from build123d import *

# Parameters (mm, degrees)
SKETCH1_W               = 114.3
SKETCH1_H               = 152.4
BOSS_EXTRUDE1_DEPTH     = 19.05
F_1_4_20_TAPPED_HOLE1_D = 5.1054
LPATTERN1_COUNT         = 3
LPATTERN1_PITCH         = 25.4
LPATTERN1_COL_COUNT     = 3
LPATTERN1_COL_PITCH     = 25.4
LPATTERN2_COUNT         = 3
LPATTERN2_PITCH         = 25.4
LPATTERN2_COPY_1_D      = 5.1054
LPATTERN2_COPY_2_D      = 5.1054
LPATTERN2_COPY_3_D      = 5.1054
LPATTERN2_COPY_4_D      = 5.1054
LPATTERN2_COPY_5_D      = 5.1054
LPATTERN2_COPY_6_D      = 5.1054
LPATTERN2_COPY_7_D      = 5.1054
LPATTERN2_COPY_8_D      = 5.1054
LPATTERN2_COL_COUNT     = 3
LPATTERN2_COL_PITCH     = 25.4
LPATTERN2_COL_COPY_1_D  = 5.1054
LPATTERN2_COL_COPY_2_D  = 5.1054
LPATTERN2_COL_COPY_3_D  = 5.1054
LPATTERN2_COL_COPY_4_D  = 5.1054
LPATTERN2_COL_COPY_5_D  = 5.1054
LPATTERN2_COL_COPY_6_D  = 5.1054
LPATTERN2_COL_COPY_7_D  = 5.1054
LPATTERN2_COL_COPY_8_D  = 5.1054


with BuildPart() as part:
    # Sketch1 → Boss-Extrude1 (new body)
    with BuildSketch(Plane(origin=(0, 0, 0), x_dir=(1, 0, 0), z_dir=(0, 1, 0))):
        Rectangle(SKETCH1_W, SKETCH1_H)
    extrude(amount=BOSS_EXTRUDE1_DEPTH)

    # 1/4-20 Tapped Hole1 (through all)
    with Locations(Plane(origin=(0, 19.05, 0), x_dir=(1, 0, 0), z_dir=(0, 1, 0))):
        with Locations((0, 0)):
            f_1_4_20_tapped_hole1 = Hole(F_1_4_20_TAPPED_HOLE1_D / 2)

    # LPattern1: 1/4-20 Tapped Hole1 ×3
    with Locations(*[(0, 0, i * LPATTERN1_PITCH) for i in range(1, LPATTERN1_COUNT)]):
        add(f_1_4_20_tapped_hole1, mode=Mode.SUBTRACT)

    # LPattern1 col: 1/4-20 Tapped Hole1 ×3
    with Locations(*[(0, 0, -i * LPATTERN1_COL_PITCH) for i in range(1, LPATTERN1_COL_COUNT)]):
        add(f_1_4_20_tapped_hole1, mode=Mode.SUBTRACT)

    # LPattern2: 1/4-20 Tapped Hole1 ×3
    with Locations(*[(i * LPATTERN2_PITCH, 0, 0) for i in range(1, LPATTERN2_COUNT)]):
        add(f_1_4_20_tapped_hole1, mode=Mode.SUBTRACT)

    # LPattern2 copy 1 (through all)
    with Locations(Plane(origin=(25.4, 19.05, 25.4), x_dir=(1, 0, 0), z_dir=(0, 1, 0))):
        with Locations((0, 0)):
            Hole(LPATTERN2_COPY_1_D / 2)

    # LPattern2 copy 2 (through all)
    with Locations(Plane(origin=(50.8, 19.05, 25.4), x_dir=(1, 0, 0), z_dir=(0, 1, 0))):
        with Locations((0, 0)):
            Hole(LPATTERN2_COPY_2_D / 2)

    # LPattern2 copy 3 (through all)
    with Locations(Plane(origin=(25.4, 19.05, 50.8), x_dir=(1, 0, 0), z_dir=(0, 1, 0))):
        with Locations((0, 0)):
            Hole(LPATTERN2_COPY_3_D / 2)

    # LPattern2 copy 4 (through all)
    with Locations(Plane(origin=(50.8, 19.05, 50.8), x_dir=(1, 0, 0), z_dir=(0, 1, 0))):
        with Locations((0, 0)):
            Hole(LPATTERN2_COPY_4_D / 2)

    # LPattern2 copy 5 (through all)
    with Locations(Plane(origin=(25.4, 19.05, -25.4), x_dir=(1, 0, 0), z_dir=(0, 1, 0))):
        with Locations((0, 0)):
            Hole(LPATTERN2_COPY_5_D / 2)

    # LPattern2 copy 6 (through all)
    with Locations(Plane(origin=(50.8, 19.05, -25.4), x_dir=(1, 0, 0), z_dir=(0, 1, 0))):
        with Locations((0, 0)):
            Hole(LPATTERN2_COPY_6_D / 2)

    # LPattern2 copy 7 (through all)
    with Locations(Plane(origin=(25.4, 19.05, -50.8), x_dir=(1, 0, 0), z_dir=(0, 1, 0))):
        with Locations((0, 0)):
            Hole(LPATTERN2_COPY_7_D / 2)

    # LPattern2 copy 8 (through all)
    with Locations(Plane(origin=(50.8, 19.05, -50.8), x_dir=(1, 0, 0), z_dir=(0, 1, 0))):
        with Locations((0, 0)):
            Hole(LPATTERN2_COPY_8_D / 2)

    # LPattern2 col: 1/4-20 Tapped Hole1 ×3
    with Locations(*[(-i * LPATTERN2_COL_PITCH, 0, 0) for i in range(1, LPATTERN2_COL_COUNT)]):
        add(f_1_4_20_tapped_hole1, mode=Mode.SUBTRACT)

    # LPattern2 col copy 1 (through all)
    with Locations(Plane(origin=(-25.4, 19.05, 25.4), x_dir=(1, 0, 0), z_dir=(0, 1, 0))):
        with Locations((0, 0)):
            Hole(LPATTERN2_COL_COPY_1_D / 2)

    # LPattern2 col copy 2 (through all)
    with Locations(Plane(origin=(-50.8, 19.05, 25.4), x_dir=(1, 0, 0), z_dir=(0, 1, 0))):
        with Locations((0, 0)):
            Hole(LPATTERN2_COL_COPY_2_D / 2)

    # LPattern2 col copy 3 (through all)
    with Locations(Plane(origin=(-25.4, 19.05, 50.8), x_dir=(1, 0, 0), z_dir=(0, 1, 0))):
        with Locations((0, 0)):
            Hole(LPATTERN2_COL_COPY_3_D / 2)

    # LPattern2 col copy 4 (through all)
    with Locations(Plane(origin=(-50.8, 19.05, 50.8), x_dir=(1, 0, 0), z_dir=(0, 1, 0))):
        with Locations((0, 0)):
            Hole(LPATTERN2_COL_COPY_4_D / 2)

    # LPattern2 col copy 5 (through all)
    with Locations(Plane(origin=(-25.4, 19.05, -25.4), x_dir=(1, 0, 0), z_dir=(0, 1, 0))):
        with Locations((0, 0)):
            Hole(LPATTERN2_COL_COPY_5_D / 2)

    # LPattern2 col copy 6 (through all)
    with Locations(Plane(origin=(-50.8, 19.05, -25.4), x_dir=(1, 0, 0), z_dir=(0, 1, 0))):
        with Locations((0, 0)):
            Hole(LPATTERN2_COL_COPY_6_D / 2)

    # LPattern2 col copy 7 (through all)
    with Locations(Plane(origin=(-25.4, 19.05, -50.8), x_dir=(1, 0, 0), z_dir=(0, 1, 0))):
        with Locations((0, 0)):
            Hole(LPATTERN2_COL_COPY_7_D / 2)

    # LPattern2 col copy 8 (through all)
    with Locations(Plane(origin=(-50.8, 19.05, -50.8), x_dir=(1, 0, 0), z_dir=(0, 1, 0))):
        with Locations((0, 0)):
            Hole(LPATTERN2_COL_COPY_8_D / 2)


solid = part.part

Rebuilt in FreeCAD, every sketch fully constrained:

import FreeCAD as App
import Part
import Sketcher
Q = App.Units.Quantity

doc = App.newDocument("Part")
body = doc.addObject("PartDesign::Body", "Body")

sketch1 = body.newObject("Sketcher::SketchObject", "Sketch")
sketch1.AttachmentSupport = (doc.getObject("XZ_Plane"), [""])
sketch1.MapMode = "FlatFace"
sketch1.addGeometry([
    Part.LineSegment(App.Vector(-57, -76, 0), App.Vector(-57, 76, 0)),
    Part.LineSegment(App.Vector(-57, 76, 0), App.Vector(57, 76, 0)),
    Part.LineSegment(App.Vector(57, 76, 0), App.Vector(57, -76, 0)),
    Part.LineSegment(App.Vector(57, -76, 0), App.Vector(-57, -76, 0)),
], False)
sketch1.addConstraint([
    Sketcher.Constraint("Coincident", 0, 2, 1, 1),
    Sketcher.Constraint("Coincident", 1, 2, 2, 1),
    Sketcher.Constraint("Coincident", 2, 2, 3, 1),
    Sketcher.Constraint("Coincident", 3, 2, 0, 1),
    Sketcher.Constraint("Vertical", 0),
    Sketcher.Constraint("Horizontal", 1),
    Sketcher.Constraint("Vertical", 2),
    Sketcher.Constraint("Horizontal", 3),
    Sketcher.Constraint("Symmetric", 0, 2, 2, 2, -1, 1),
    Sketcher.Constraint("DistanceY", 0, 1, 0, 2, Q("6 in")),
    Sketcher.Constraint("DistanceX", 1, 1, 1, 2, Q("4.5 in")),
])
pad1 = body.newObject("PartDesign::Pad", "Pad")
pad1.Profile = sketch1
pad1.Length = Q("0.75 in")
pad1.Reversed = True

sketch2 = body.newObject("Sketcher::SketchObject", "Sketch001")
sketch2.AttachmentSupport = (doc.getObject("XZ_Plane"), [""])
sketch2.MapMode = "FlatFace"
sketch2.AttachmentOffset = App.Placement(App.Vector(0, 0, -0.75 * 25.4), App.Rotation())
sketch2.addGeometry(Part.Circle(App.Vector(0, 0, 0), App.Vector(0, 0, 1), 2.6), False)
sketch2.addConstraint([
    Sketcher.Constraint("Coincident", 0, 3, -1, 1),
    Sketcher.Constraint("Diameter", 0, Q("0.201 in")),
])
doc.recompute()
hole = body.newObject("PartDesign::Hole", "Hole")
hole.Profile = sketch2
hole.ThreadType = "None"
hole.Diameter = Q("0.201 in")
hole.DepthType = "ThroughAll"
hole.Reversed = True
doc.recompute()

linearpattern = body.newObject("PartDesign::LinearPattern", "LinearPattern")
linearpattern.Originals = [hole]
linearpattern.Direction = (doc.getObject("Z_Axis"), [""])
linearpattern.Mode = "offset"
linearpattern.Offset = Q("1 in")
linearpattern.Occurrences = 3
body.Tip = linearpattern
doc.recompute()

linearpattern2 = body.newObject("PartDesign::LinearPattern", "LinearPattern001")
linearpattern2.Originals = [hole]
linearpattern2.Direction = (doc.getObject("Z_Axis"), [""])
linearpattern2.Mode = "offset"
linearpattern2.Offset = Q("1 in")
linearpattern2.Occurrences = 3
linearpattern2.Reversed = True
body.Tip = linearpattern2
doc.recompute()

linearpattern3 = body.newObject("PartDesign::LinearPattern", "LinearPattern002")
linearpattern3.Originals = [hole]
linearpattern3.Direction = (doc.getObject("X_Axis"), [""])
linearpattern3.Mode = "offset"
linearpattern3.Offset = Q("1 in")
linearpattern3.Occurrences = 3
body.Tip = linearpattern3

sketch3 = body.newObject("Sketcher::SketchObject", "Sketch002")
sketch3.AttachmentSupport = (doc.getObject("XZ_Plane"), [""])
sketch3.MapMode = "FlatFace"
sketch3.AttachmentOffset = App.Placement(App.Vector(0, 0, -0.75 * 25.4), App.Rotation())
sketch3.addGeometry(Part.Circle(App.Vector(25.4, 25.4, 0), App.Vector(0, 0, 1), 2.6), False)
sketch3.addConstraint([
    Sketcher.Constraint("Diameter", 0, Q("0.201 in")),
    Sketcher.Constraint("DistanceX", -1, 1, 0, 3, Q("1 in")),
    Sketcher.Constraint("DistanceY", -1, 1, 0, 3, Q("1 in")),
])
doc.recompute()
hole2 = body.newObject("PartDesign::Hole", "Hole001")
hole2.Profile = sketch3
hole2.ThreadType = "None"
hole2.Diameter = Q("0.201 in")
hole2.DepthType = "ThroughAll"
hole2.Reversed = True

sketch4 = body.newObject("Sketcher::SketchObject", "Sketch003")
sketch4.AttachmentSupport = (doc.getObject("XZ_Plane"), [""])
sketch4.MapMode = "FlatFace"
sketch4.AttachmentOffset = App.Placement(App.Vector(0, 0, -0.75 * 25.4), App.Rotation())
sketch4.addGeometry(Part.Circle(App.Vector(50.8, 25.4, 0), App.Vector(0, 0, 1), 2.6), False)
sketch4.addConstraint([
    Sketcher.Constraint("Diameter", 0, Q("0.201 in")),
    Sketcher.Constraint("DistanceX", -1, 1, 0, 3, Q("2 in")),
    Sketcher.Constraint("DistanceY", -1, 1, 0, 3, Q("1 in")),
])
doc.recompute()
hole3 = body.newObject("PartDesign::Hole", "Hole002")
hole3.Profile = sketch4
hole3.ThreadType = "None"
hole3.Diameter = Q("0.201 in")
hole3.DepthType = "ThroughAll"
hole3.Reversed = True

sketch5 = body.newObject("Sketcher::SketchObject", "Sketch004")
sketch5.AttachmentSupport = (doc.getObject("XZ_Plane"), [""])
sketch5.MapMode = "FlatFace"
sketch5.AttachmentOffset = App.Placement(App.Vector(0, 0, -0.75 * 25.4), App.Rotation())
sketch5.addGeometry(Part.Circle(App.Vector(25.4, 50.8, 0), App.Vector(0, 0, 1), 2.6), False)
sketch5.addConstraint([
    Sketcher.Constraint("Diameter", 0, Q("0.201 in")),
    Sketcher.Constraint("DistanceX", -1, 1, 0, 3, Q("1 in")),
    Sketcher.Constraint("DistanceY", -1, 1, 0, 3, Q("2 in")),
])
doc.recompute()
hole4 = body.newObject("PartDesign::Hole", "Hole003")
hole4.Profile = sketch5
hole4.ThreadType = "None"
hole4.Diameter = Q("0.201 in")
hole4.DepthType = "ThroughAll"
hole4.Reversed = True

sketch6 = body.newObject("Sketcher::SketchObject", "Sketch005")
sketch6.AttachmentSupport = (doc.getObject("XZ_Plane"), [""])
sketch6.MapMode = "FlatFace"
sketch6.AttachmentOffset = App.Placement(App.Vector(0, 0, -0.75 * 25.4), App.Rotation())
sketch6.addGeometry(Part.Circle(App.Vector(50.8, 50.8, 0), App.Vector(0, 0, 1), 2.6), False)
sketch6.addConstraint([
    Sketcher.Constraint("Diameter", 0, Q("0.201 in")),
    Sketcher.Constraint("DistanceX", -1, 1, 0, 3, Q("2 in")),
    Sketcher.Constraint("DistanceY", -1, 1, 0, 3, Q("2 in")),
])
doc.recompute()
hole5 = body.newObject("PartDesign::Hole", "Hole004")
hole5.Profile = sketch6
hole5.ThreadType = "None"
hole5.Diameter = Q("0.201 in")
hole5.DepthType = "ThroughAll"
hole5.Reversed = True

sketch7 = body.newObject("Sketcher::SketchObject", "Sketch006")
sketch7.AttachmentSupport = (doc.getObject("XZ_Plane"), [""])
sketch7.MapMode = "FlatFace"
sketch7.AttachmentOffset = App.Placement(App.Vector(0, 0, -0.75 * 25.4), App.Rotation())
sketch7.addGeometry(Part.Circle(App.Vector(25.4, -25.4, 0), App.Vector(0, 0, 1), 2.6), False)
sketch7.addConstraint([
    Sketcher.Constraint("Diameter", 0, Q("0.201 in")),
    Sketcher.Constraint("DistanceX", -1, 1, 0, 3, Q("1 in")),
    Sketcher.Constraint("DistanceY", 0, 3, -1, 1, Q("1 in")),
])
doc.recompute()
hole6 = body.newObject("PartDesign::Hole", "Hole005")
hole6.Profile = sketch7
hole6.ThreadType = "None"
hole6.Diameter = Q("0.201 in")
hole6.DepthType = "ThroughAll"
hole6.Reversed = True

sketch8 = body.newObject("Sketcher::SketchObject", "Sketch007")
sketch8.AttachmentSupport = (doc.getObject("XZ_Plane"), [""])
sketch8.MapMode = "FlatFace"
sketch8.AttachmentOffset = App.Placement(App.Vector(0, 0, -0.75 * 25.4), App.Rotation())
sketch8.addGeometry(Part.Circle(App.Vector(50.8, -25.4, 0), App.Vector(0, 0, 1), 2.6), False)
sketch8.addConstraint([
    Sketcher.Constraint("Diameter", 0, Q("0.201 in")),
    Sketcher.Constraint("DistanceX", -1, 1, 0, 3, Q("2 in")),
    Sketcher.Constraint("DistanceY", 0, 3, -1, 1, Q("1 in")),
])
doc.recompute()
hole7 = body.newObject("PartDesign::Hole", "Hole006")
hole7.Profile = sketch8
hole7.ThreadType = "None"
hole7.Diameter = Q("0.201 in")
hole7.DepthType = "ThroughAll"
hole7.Reversed = True

sketch9 = body.newObject("Sketcher::SketchObject", "Sketch008")
sketch9.AttachmentSupport = (doc.getObject("XZ_Plane"), [""])
sketch9.MapMode = "FlatFace"
sketch9.AttachmentOffset = App.Placement(App.Vector(0, 0, -0.75 * 25.4), App.Rotation())
sketch9.addGeometry(Part.Circle(App.Vector(25.4, -50.8, 0), App.Vector(0, 0, 1), 2.6), False)
sketch9.addConstraint([
    Sketcher.Constraint("Diameter", 0, Q("0.201 in")),
    Sketcher.Constraint("DistanceX", -1, 1, 0, 3, Q("1 in")),
    Sketcher.Constraint("DistanceY", 0, 3, -1, 1, Q("2 in")),
])
doc.recompute()
hole8 = body.newObject("PartDesign::Hole", "Hole007")
hole8.Profile = sketch9
hole8.ThreadType = "None"
hole8.Diameter = Q("0.201 in")
hole8.DepthType = "ThroughAll"
hole8.Reversed = True

sketch10 = body.newObject("Sketcher::SketchObject", "Sketch009")
sketch10.AttachmentSupport = (doc.getObject("XZ_Plane"), [""])
sketch10.MapMode = "FlatFace"
sketch10.AttachmentOffset = App.Placement(App.Vector(0, 0, -0.75 * 25.4), App.Rotation())
sketch10.addGeometry(Part.Circle(App.Vector(50.8, -50.8, 0), App.Vector(0, 0, 1), 2.6), False)
sketch10.addConstraint([
    Sketcher.Constraint("Diameter", 0, Q("0.201 in")),
    Sketcher.Constraint("DistanceX", -1, 1, 0, 3, Q("2 in")),
    Sketcher.Constraint("DistanceY", 0, 3, -1, 1, Q("2 in")),
])
doc.recompute()
hole9 = body.newObject("PartDesign::Hole", "Hole008")
hole9.Profile = sketch10
hole9.ThreadType = "None"
hole9.Diameter = Q("0.201 in")
hole9.DepthType = "ThroughAll"
hole9.Reversed = True
doc.recompute()

linearpattern4 = body.newObject("PartDesign::LinearPattern", "LinearPattern003")
linearpattern4.Originals = [hole]
linearpattern4.Direction = (doc.getObject("X_Axis"), [""])
linearpattern4.Mode = "offset"
linearpattern4.Offset = Q("1 in")
linearpattern4.Occurrences = 3
linearpattern4.Reversed = True
body.Tip = linearpattern4

sketch11 = body.newObject("Sketcher::SketchObject", "Sketch010")
sketch11.AttachmentSupport = (doc.getObject("XZ_Plane"), [""])
sketch11.MapMode = "FlatFace"
sketch11.AttachmentOffset = App.Placement(App.Vector(0, 0, -0.75 * 25.4), App.Rotation())
sketch11.addGeometry(Part.Circle(App.Vector(-25.4, 25.4, 0), App.Vector(0, 0, 1), 2.6), False)
sketch11.addConstraint([
    Sketcher.Constraint("Diameter", 0, Q("0.201 in")),
    Sketcher.Constraint("DistanceX", 0, 3, -1, 1, Q("1 in")),
    Sketcher.Constraint("DistanceY", -1, 1, 0, 3, Q("1 in")),
])
doc.recompute()
hole10 = body.newObject("PartDesign::Hole", "Hole009")
hole10.Profile = sketch11
hole10.ThreadType = "None"
hole10.Diameter = Q("0.201 in")
hole10.DepthType = "ThroughAll"
hole10.Reversed = True

sketch12 = body.newObject("Sketcher::SketchObject", "Sketch011")
sketch12.AttachmentSupport = (doc.getObject("XZ_Plane"), [""])
sketch12.MapMode = "FlatFace"
sketch12.AttachmentOffset = App.Placement(App.Vector(0, 0, -0.75 * 25.4), App.Rotation())
sketch12.addGeometry(Part.Circle(App.Vector(-50.8, 25.4, 0), App.Vector(0, 0, 1), 2.6), False)
sketch12.addConstraint([
    Sketcher.Constraint("Diameter", 0, Q("0.201 in")),
    Sketcher.Constraint("DistanceX", 0, 3, -1, 1, Q("2 in")),
    Sketcher.Constraint("DistanceY", -1, 1, 0, 3, Q("1 in")),
])
doc.recompute()
hole11 = body.newObject("PartDesign::Hole", "Hole010")
hole11.Profile = sketch12
hole11.ThreadType = "None"
hole11.Diameter = Q("0.201 in")
hole11.DepthType = "ThroughAll"
hole11.Reversed = True

sketch13 = body.newObject("Sketcher::SketchObject", "Sketch012")
sketch13.AttachmentSupport = (doc.getObject("XZ_Plane"), [""])
sketch13.MapMode = "FlatFace"
sketch13.AttachmentOffset = App.Placement(App.Vector(0, 0, -0.75 * 25.4), App.Rotation())
sketch13.addGeometry(Part.Circle(App.Vector(-25.4, 50.8, 0), App.Vector(0, 0, 1), 2.6), False)
sketch13.addConstraint([
    Sketcher.Constraint("Diameter", 0, Q("0.201 in")),
    Sketcher.Constraint("DistanceX", 0, 3, -1, 1, Q("1 in")),
    Sketcher.Constraint("DistanceY", -1, 1, 0, 3, Q("2 in")),
])
doc.recompute()
hole12 = body.newObject("PartDesign::Hole", "Hole011")
hole12.Profile = sketch13
hole12.ThreadType = "None"
hole12.Diameter = Q("0.201 in")
hole12.DepthType = "ThroughAll"
hole12.Reversed = True

sketch14 = body.newObject("Sketcher::SketchObject", "Sketch013")
sketch14.AttachmentSupport = (doc.getObject("XZ_Plane"), [""])
sketch14.MapMode = "FlatFace"
sketch14.AttachmentOffset = App.Placement(App.Vector(0, 0, -0.75 * 25.4), App.Rotation())
sketch14.addGeometry(Part.Circle(App.Vector(-50.8, 50.8, 0), App.Vector(0, 0, 1), 2.6), False)
sketch14.addConstraint([
    Sketcher.Constraint("Diameter", 0, Q("0.201 in")),
    Sketcher.Constraint("DistanceX", 0, 3, -1, 1, Q("2 in")),
    Sketcher.Constraint("DistanceY", -1, 1, 0, 3, Q("2 in")),
])
doc.recompute()
hole13 = body.newObject("PartDesign::Hole", "Hole012")
hole13.Profile = sketch14
hole13.ThreadType = "None"
hole13.Diameter = Q("0.201 in")
hole13.DepthType = "ThroughAll"
hole13.Reversed = True

sketch15 = body.newObject("Sketcher::SketchObject", "Sketch014")
sketch15.AttachmentSupport = (doc.getObject("XZ_Plane"), [""])
sketch15.MapMode = "FlatFace"
sketch15.AttachmentOffset = App.Placement(App.Vector(0, 0, -0.75 * 25.4), App.Rotation())
sketch15.addGeometry(Part.Circle(App.Vector(-25.4, -25.4, 0), App.Vector(0, 0, 1), 2.6), False)
sketch15.addConstraint([
    Sketcher.Constraint("Diameter", 0, Q("0.201 in")),
    Sketcher.Constraint("DistanceX", 0, 3, -1, 1, Q("1 in")),
    Sketcher.Constraint("DistanceY", 0, 3, -1, 1, Q("1 in")),
])
doc.recompute()
hole14 = body.newObject("PartDesign::Hole", "Hole013")
hole14.Profile = sketch15
hole14.ThreadType = "None"
hole14.Diameter = Q("0.201 in")
hole14.DepthType = "ThroughAll"
hole14.Reversed = True

sketch16 = body.newObject("Sketcher::SketchObject", "Sketch015")
sketch16.AttachmentSupport = (doc.getObject("XZ_Plane"), [""])
sketch16.MapMode = "FlatFace"
sketch16.AttachmentOffset = App.Placement(App.Vector(0, 0, -0.75 * 25.4), App.Rotation())
sketch16.addGeometry(Part.Circle(App.Vector(-50.8, -25.4, 0), App.Vector(0, 0, 1), 2.6), False)
sketch16.addConstraint([
    Sketcher.Constraint("Diameter", 0, Q("0.201 in")),
    Sketcher.Constraint("DistanceX", 0, 3, -1, 1, Q("2 in")),
    Sketcher.Constraint("DistanceY", 0, 3, -1, 1, Q("1 in")),
])
doc.recompute()
hole15 = body.newObject("PartDesign::Hole", "Hole014")
hole15.Profile = sketch16
hole15.ThreadType = "None"
hole15.Diameter = Q("0.201 in")
hole15.DepthType = "ThroughAll"
hole15.Reversed = True

sketch17 = body.newObject("Sketcher::SketchObject", "Sketch016")
sketch17.AttachmentSupport = (doc.getObject("XZ_Plane"), [""])
sketch17.MapMode = "FlatFace"
sketch17.AttachmentOffset = App.Placement(App.Vector(0, 0, -0.75 * 25.4), App.Rotation())
sketch17.addGeometry(Part.Circle(App.Vector(-25.4, -50.8, 0), App.Vector(0, 0, 1), 2.6), False)
sketch17.addConstraint([
    Sketcher.Constraint("Diameter", 0, Q("0.201 in")),
    Sketcher.Constraint("DistanceX", 0, 3, -1, 1, Q("1 in")),
    Sketcher.Constraint("DistanceY", 0, 3, -1, 1, Q("2 in")),
])
doc.recompute()
hole16 = body.newObject("PartDesign::Hole", "Hole015")
hole16.Profile = sketch17
hole16.ThreadType = "None"
hole16.Diameter = Q("0.201 in")
hole16.DepthType = "ThroughAll"
hole16.Reversed = True

sketch18 = body.newObject("Sketcher::SketchObject", "Sketch017")
sketch18.AttachmentSupport = (doc.getObject("XZ_Plane"), [""])
sketch18.MapMode = "FlatFace"
sketch18.AttachmentOffset = App.Placement(App.Vector(0, 0, -0.75 * 25.4), App.Rotation())
sketch18.addGeometry(Part.Circle(App.Vector(-50.8, -50.8, 0), App.Vector(0, 0, 1), 2.6), False)
sketch18.addConstraint([
    Sketcher.Constraint("Diameter", 0, Q("0.201 in")),
    Sketcher.Constraint("DistanceX", 0, 3, -1, 1, Q("2 in")),
    Sketcher.Constraint("DistanceY", 0, 3, -1, 1, Q("2 in")),
])
doc.recompute()
hole17 = body.newObject("PartDesign::Hole", "Hole016")
hole17.Profile = sketch18
hole17.ThreadType = "None"
hole17.Diameter = Q("0.201 in")
hole17.DepthType = "ThroughAll"
hole17.Reversed = True

doc.recompute()
